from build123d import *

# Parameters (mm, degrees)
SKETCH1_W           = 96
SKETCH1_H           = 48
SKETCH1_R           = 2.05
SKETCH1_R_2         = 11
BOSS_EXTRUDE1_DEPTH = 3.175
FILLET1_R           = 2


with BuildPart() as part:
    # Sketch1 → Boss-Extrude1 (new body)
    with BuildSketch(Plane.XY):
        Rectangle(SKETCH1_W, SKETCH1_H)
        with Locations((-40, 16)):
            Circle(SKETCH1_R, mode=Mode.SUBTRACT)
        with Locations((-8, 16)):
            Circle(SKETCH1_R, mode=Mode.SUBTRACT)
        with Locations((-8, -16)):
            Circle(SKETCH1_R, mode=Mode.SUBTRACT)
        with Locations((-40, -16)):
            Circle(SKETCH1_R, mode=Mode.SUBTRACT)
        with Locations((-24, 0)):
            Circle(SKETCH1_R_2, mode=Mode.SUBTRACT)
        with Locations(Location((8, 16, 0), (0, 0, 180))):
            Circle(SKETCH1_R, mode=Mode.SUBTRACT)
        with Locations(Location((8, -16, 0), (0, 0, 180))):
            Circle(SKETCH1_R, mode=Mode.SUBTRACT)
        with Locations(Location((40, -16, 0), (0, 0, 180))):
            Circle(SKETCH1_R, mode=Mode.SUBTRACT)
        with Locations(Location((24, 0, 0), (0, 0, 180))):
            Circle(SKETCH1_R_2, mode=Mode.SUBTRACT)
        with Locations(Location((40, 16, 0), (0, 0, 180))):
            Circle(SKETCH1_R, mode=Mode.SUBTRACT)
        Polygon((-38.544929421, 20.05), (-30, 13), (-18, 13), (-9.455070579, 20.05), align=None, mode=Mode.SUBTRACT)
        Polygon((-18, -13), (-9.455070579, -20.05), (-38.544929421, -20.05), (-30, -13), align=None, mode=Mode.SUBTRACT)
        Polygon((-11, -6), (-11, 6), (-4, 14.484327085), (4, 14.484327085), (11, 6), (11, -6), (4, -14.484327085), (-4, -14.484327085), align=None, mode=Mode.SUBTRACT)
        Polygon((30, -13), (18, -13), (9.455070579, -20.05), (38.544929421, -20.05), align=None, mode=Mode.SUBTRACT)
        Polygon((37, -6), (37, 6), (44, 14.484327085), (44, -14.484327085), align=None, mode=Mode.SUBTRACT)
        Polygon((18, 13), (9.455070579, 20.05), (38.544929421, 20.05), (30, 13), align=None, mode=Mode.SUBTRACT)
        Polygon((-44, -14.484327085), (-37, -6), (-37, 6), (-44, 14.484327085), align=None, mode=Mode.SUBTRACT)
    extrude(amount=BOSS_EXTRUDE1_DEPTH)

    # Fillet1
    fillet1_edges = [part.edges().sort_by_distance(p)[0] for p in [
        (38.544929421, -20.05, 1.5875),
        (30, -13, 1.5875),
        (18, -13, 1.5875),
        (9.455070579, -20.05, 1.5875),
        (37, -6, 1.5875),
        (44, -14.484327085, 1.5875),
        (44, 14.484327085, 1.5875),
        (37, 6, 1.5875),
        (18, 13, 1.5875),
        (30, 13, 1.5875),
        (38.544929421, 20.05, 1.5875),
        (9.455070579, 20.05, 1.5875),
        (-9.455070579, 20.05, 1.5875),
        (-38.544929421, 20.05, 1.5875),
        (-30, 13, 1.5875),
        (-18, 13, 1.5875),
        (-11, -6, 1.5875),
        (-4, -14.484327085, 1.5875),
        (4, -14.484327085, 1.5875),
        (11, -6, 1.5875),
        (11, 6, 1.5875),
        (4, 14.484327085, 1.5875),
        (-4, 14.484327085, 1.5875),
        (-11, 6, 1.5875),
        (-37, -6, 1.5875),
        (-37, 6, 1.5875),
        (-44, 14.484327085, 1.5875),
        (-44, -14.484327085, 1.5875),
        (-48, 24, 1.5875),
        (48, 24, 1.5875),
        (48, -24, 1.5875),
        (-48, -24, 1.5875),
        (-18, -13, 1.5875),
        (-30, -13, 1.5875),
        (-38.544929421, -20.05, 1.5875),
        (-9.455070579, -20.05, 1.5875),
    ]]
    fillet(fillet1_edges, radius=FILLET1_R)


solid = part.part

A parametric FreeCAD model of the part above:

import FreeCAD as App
import Part
import Sketcher
from FreeCAD import Vector


def edges_at(feature, points):
    """Names of the edges that pass closest to the given points."""
    edges = feature.Shape.Edges
    near = lambda p: min(range(len(edges)), key=lambda i: edges[i].distToShape(Part.Vertex(*p))[0])
    return sorted({f"Edge{near(p) + 1}" for p in points})

doc = App.newDocument("Part")
body = doc.addObject("PartDesign::Body", "Body")

sketch1 = doc.addObject("Sketcher::SketchObject", "Sketch")
body.addObject(sketch1)
sketch1.AttachmentSupport = (doc.XY_Plane, [""])
sketch1.MapMode = "FlatFace"
sketch1.addGeometry(Part.LineSegment(Vector(-48, 24, 0), Vector(-48, -24, 0)), False)
sketch1.addGeometry(Part.LineSegment(Vector(-48, -24, 0), Vector(48, -24, 0)), False)
sketch1.addGeometry(Part.LineSegment(Vector(48, -24, 0), Vector(48, 24, 0)), False)
sketch1.addGeometry(Part.LineSegment(Vector(48, 24, 0), Vector(-48, 24, 0)), False)
sketch1.addGeometry(Part.Circle(Vector(-40, -16, 0), Vector(0, 0, 1), 2.05), False)
sketch1.addGeometry(Part.LineSegment(Vector(-30, -13, 0), Vector(-18, -13, 0)), False)
sketch1.addGeometry(Part.LineSegment(Vector(-18, -13, 0), Vector(-9.455071, -20.05, 0)), False)
sketch1.addGeometry(Part.LineSegment(Vector(-9.455071, -20.05, 0), Vector(-38.544929, -20.05, 0)), False)
sketch1.addGeometry(Part.LineSegment(Vector(-38.544929, -20.05, 0), Vector(-30, -13, 0)), False)
sketch1.addGeometry(Part.Circle(Vector(-8, -16, 0), Vector(0, 0, 1), 2.05), False)
sketch1.addGeometry(Part.LineSegment(Vector(-37, -6, 0), Vector(-44, -14.484327, 0)), False)
sketch1.addGeometry(Part.LineSegment(Vector(-44, -14.484327, 0), Vector(-44, 14.484327, 0)), False)
sketch1.addGeometry(Part.LineSegment(Vector(-44, 14.484327, 0), Vector(-37, 6, 0)), False)
sketch1.addGeometry(Part.LineSegment(Vector(-37, 6, 0), Vector(-37, -6, 0)), False)
sketch1.addGeometry(Part.Circle(Vector(-24, 0, 0), Vector(0, 0, 1), 11), False)
sketch1.addGeometry(Part.Circle(Vector(8, -16, 0), Vector(0, 0, 1), 2.05), False)
sketch1.addGeometry(Part.LineSegment(Vector(18, -13, 0), Vector(30, -13, 0)), False)
sketch1.addGeometry(Part.LineSegment(Vector(30, -13, 0), Vector(38.544929, -20.05, 0)), False)
sketch1.addGeometry(Part.LineSegment(Vector(38.544929, -20.05, 0), Vector(9.455071, -20.05, 0)), False)
sketch1.addGeometry(Part.LineSegment(Vector(9.455071, -20.05, 0), Vector(18, -13, 0)), False)
sketch1.addGeometry(Part.Circle(Vector(40, -16, 0), Vector(0, 0, 1), 2.05), False)
sketch1.addGeometry(Part.LineSegment(Vector(-4, -14.484327, 0), Vector(-11, -6, 0)), False)
sketch1.addGeometry(Part.LineSegment(Vector(-11, -6, 0), Vector(-11, 6, 0)), False)
sketch1.addGeometry(Part.LineSegment(Vector(-11, 6, 0), Vector(-4, 14.484327, 0)), False)
sketch1.addGeometry(Part.LineSegment(Vector(-4, 14.484327, 0), Vector(4, 14.484327, 0)), False)
sketch1.addGeometry(Part.LineSegment(Vector(4, 14.484327, 0), Vector(11, 6, 0)), False)
sketch1.addGeometry(Part.LineSegment(Vector(11, 6, 0), Vector(11, -6, 0)), False)
sketch1.addGeometry(Part.LineSegment(Vector(11, -6, 0), Vector(4, -14.484327, 0)), False)
sketch1.addGeometry(Part.LineSegment(Vector(4, -14.484327, 0), Vector(-4, -14.484327, 0)), False)
sketch1.addGeometry(Part.Circle(Vector(24, 0, 0), Vector(0, 0, 1), 11), False)
sketch1.addGeometry(Part.LineSegment(Vector(44, -14.484327, 0), Vector(37, -6, 0)), False)
sketch1.addGeometry(Part.LineSegment(Vector(37, -6, 0), Vector(37, 6, 0)), False)
sketch1.addGeometry(Part.LineSegment(Vector(37, 6, 0), Vector(44, 14.484327, 0)), False)
sketch1.addGeometry(Part.LineSegment(Vector(44, 14.484327, 0), Vector(44, -14.484327, 0)), False)
sketch1.addGeometry(Part.Circle(Vector(-40, 16, 0), Vector(0, 0, 1), 2.05), False)
sketch1.addGeometry(Part.LineSegment(Vector(-30, 13, 0), Vector(-38.544929, 20.05, 0)), False)
sketch1.addGeometry(Part.LineSegment(Vector(-38.544929, 20.05, 0), Vector(-9.455071, 20.05, 0)), False)
sketch1.addGeometry(Part.LineSegment(Vector(-9.455071, 20.05, 0), Vector(-18, 13, 0)), False)
sketch1.addGeometry(Part.LineSegment(Vector(-18, 13, 0), Vector(-30, 13, 0)), False)
sketch1.addGeometry(Part.Circle(Vector(-8, 16, 0), Vector(0, 0, 1), 2.05), False)
sketch1.addGeometry(Part.Circle(Vector(8, 16, 0), Vector(0, 0, 1), 2.05), False)
sketch1.addGeometry(Part.LineSegment(Vector(30, 13, 0), Vector(18, 13, 0)), False)
sketch1.addGeometry(Part.LineSegment(Vector(18, 13, 0), Vector(9.455071, 20.05, 0)), False)
sketch1.addGeometry(Part.LineSegment(Vector(9.455071, 20.05, 0), Vector(38.544929, 20.05, 0)), False)
sketch1.addGeometry(Part.LineSegment(Vector(38.544929, 20.05, 0), Vector(30, 13, 0)), False)
sketch1.addGeometry(Part.Circle(Vector(40, 16, 0), Vector(0, 0, 1), 2.05), False)
sketch1.addConstraint(Sketcher.Constraint("Coincident", 0, 2, 1, 1))
sketch1.addConstraint(Sketcher.Constraint("Coincident", 1, 2, 2, 1))
sketch1.addConstraint(Sketcher.Constraint("Coincident", 2, 2, 3, 1))
sketch1.addConstraint(Sketcher.Constraint("Coincident", 3, 2, 0, 1))
sketch1.addConstraint(Sketcher.Constraint("Coincident", 5, 2, 6, 1))
sketch1.addConstraint(Sketcher.Constraint("Coincident", 6, 2, 7, 1))
sketch1.addConstraint(Sketcher.Constraint("Coincident", 7, 2, 8, 1))
sketch1.addConstraint(Sketcher.Constraint("Coincident", 8, 2, 5, 1))
sketch1.addConstraint(Sketcher.Constraint("Coincident", 10, 2, 11, 1))
sketch1.addConstraint(Sketcher.Constraint("Coincident", 11, 2, 12, 1))
sketch1.addConstraint(Sketcher.Constraint("Coincident", 12, 2, 13, 1))
sketch1.addConstraint(Sketcher.Constraint("Coincident", 13, 2, 10, 1))
sketch1.addConstraint(Sketcher.Constraint("Coincident", 16, 2, 17, 1))
sketch1.addConstraint(Sketcher.Constraint("Coincident", 17, 2, 18, 1))
sketch1.addConstraint(Sketcher.Constraint("Coincident", 18, 2, 19, 1))
sketch1.addConstraint(Sketcher.Constraint("Coincident", 19, 2, 16, 1))
sketch1.addConstraint(Sketcher.Constraint("Coincident", 21, 2, 22, 1))
sketch1.addConstraint(Sketcher.Constraint("Coincident", 22, 2, 23, 1))
sketch1.addConstraint(Sketcher.Constraint("Coincident", 23, 2, 24, 1))
sketch1.addConstraint(Sketcher.Constraint("Coincident", 24, 2, 25, 1))
sketch1.addConstraint(Sketcher.Constraint("Coincident", 25, 2, 26, 1))
sketch1.addConstraint(Sketcher.Constraint("Coincident", 26, 2, 27, 1))
sketch1.addConstraint(Sketcher.Constraint("Coincident", 27, 2, 28, 1))
sketch1.addConstraint(Sketcher.Constraint("Coincident", 28, 2, 21, 1))
sketch1.addConstraint(Sketcher.Constraint("Coincident", 30, 2, 31, 1))
sketch1.addConstraint(Sketcher.Constraint("Coincident", 31, 2, 32, 1))
sketch1.addConstraint(Sketcher.Constraint("Coincident", 32, 2, 33, 1))
sketch1.addConstraint(Sketcher.Constraint("Coincident", 33, 2, 30, 1))
sketch1.addConstraint(Sketcher.Constraint("Coincident", 35, 2, 36, 1))
sketch1.addConstraint(Sketcher.Constraint("Coincident", 36, 2, 37, 1))
sketch1.addConstraint(Sketcher.Constraint("Coincident", 37, 2, 38, 1))
sketch1.addConstraint(Sketcher.Constraint("Coincident", 38, 2, 35, 1))
sketch1.addConstraint(Sketcher.Constraint("Coincident", 41, 2, 42, 1))
sketch1.addConstraint(Sketcher.Constraint("Coincident", 42, 2, 43, 1))
sketch1.addConstraint(Sketcher.Constraint("Coincident", 43, 2, 44, 1))
sketch1.addConstraint(Sketcher.Constraint("Coincident", 44, 2, 41, 1))
sketch1.addConstraint(Sketcher.Constraint("Vertical", 0))
sketch1.addConstraint(Sketcher.Constraint("Horizontal", 1))
sketch1.addConstraint(Sketcher.Constraint("Vertical", 2))
sketch1.addConstraint(Sketcher.Constraint("Horizontal", 3))
sketch1.addConstraint(Sketcher.Constraint("Horizontal", 5))
sketch1.addConstraint(Sketcher.Constraint("Horizontal", 7))
sketch1.addConstraint(Sketcher.Constraint("Vertical", 11))
sketch1.addConstraint(Sketcher.Constraint("Vertical", 13))
sketch1.addConstraint(Sketcher.Constraint("Horizontal", 16))
sketch1.addConstraint(Sketcher.Constraint("Horizontal", 18))
sketch1.addConstraint(Sketcher.Constraint("Vertical", 22))
sketch1.addConstraint(Sketcher.Constraint("Horizontal", 24))
sketch1.addConstraint(Sketcher.Constraint("Vertical", 26))
sketch1.addConstraint(Sketcher.Constraint("Horizontal", 28))
sketch1.addConstraint(Sketcher.Constraint("Vertical", 31))
sketch1.addConstraint(Sketcher.Constraint("Vertical", 33))
sketch1.addConstraint(Sketcher.Constraint("Horizontal", 36))
sketch1.addConstraint(Sketcher.Constraint("Horizontal", 38))
sketch1.addConstraint(Sketcher.Constraint("Horizontal", 41))
sketch1.addConstraint(Sketcher.Constraint("Horizontal", 43))
sketch1.addConstraint(Sketcher.Constraint("Equal", 4, 9))
sketch1.addConstraint(Sketcher.Constraint("Equal", 9, 15))
sketch1.addConstraint(Sketcher.Constraint("Equal", 15, 20))
sketch1.addConstraint(Sketcher.Constraint("Equal", 14, 29))
sketch1.addConstraint(Sketcher.Constraint("Equal", 20, 34))
sketch1.addConstraint(Sketcher.Constraint("Equal", 34, 39))
sketch1.addConstraint(Sketcher.Constraint("Equal", 39, 40))
sketch1.addConstraint(Sketcher.Constraint("Equal", 40, 45))
sketch1.addConstraint(Sketcher.Constraint("Symmetric", 14, 3, 29, 3, -1, 1))
sketch1.addConstraint(Sketcher.Constraint("Symmetric", 20, 3, 34, 3, -1, 1))
sketch1.addConstraint(Sketcher.Constraint("Symmetric", 15, 3, 39, 3, -1, 1))
sketch1.addConstraint(Sketcher.Constraint("Symmetric", 9, 3, 40, 3, -1, 1))
sketch1.addConstraint(Sketcher.Constraint("Symmetric", 4, 3, 45, 3, -1, 1))
sketch1.addConstraint(Sketcher.Constraint("Symmetric", 0, 2, 2, 2, -1, 1))
sketch1.addConstraint(Sketcher.Constraint("Symmetric", 21, 2, 25, 2, -1, 1))
sketch1.addConstraint(Sketcher.Constraint("Symmetric", 23, 2, 27, 2, -1, 1))
sketch1.addConstraint(Sketcher.Constraint("Symmetric", 12, 2, 30, 2, -1, 1))
sketch1.addConstraint(Sketcher.Constraint("Symmetric", 10, 2, 32, 2, -1, 1))
sketch1.addConstraint(Sketcher.Constraint("Symmetric", 17, 2, 35, 2, -1, 1))
sketch1.addConstraint(Sketcher.Constraint("Symmetric", 19, 2, 37, 2, -1, 1))
sketch1.addConstraint(Sketcher.Constraint("Symmetric", 5, 2, 41, 2, -1, 1))
sketch1.addConstraint(Sketcher.Constraint("Symmetric", 6, 2, 42, 2, -1, 1))
sketch1.addConstraint(Sketcher.Constraint("Symmetric", 9, 3, 15, 3, -2))
sketch1.addConstraint(Sketcher.Constraint("Symmetric", 4, 3, 20, 3, -2))
sketch1.addConstraint(Sketcher.Constraint("Symmetric", 8, 2, 16, 2, -2))
sketch1.addConstraint(Sketcher.Constraint("Symmetric", 7, 2, 17, 2, -2))
sketch1.addConstraint(Sketcher.Constraint("PointOnObject", 14, 3, -1))
sketch1.addConstraint(Sketcher.Constraint("Perpendicular", 6, 10))
sketch1.addConstraint(Sketcher.Constraint("Perpendicular", 8, 12))
sketch1.addConstraint(Sketcher.Constraint("Perpendicular", 10, 17))
sketch1.addConstraint(Sketcher.Constraint("Perpendicular", 12, 19))
sketch1.addConstraint(Sketcher.Constraint("Perpendicular", 19, 21))
sketch1.addConstraint(Sketcher.Constraint("Perpendicular", 17, 23))
sketch1.addConstraint(Sketcher.Constraint("Parallel", 21, 25))
sketch1.addConstraint(Sketcher.Constraint("Parallel", 23, 27))
sketch1.addConstraint(Sketcher.Constraint("Parallel", 25, 30))
sketch1.addConstraint(Sketcher.Constraint("Parallel", 27, 32))
sketch1.addConstraint(Sketcher.Constraint("Perpendicular", 32, 35))
sketch1.addConstraint(Sketcher.Constraint("Perpendicular", 30, 37))
sketch1.addConstraint(Sketcher.Constraint("Parallel", 37, 44))
sketch1.addConstraint(Sketcher.Constraint("Horizontal", 4, 3, 9, 3))
sketch1.addConstraint(Sketcher.Constraint("Horizontal", 13, 2, 21, 2))
sketch1.addConstraint(Sketcher.Constraint("Horizontal", 12, 2, 22, 2))
sketch1.addConstraint(Sketcher.Constraint("Horizontal", 11, 2, 23, 2))
sketch1.addConstraint(Sketcher.Constraint("Horizontal", 22, 2, 25, 2))
sketch1.addConstraint(Sketcher.Constraint("Vertical", 6, 2, 36, 2))
sketch1.addConstraint(Sketcher.Constraint("Vertical", 17, 2, 43, 2))
sketch1.addConstraint(Sketcher.Constraint("Equal", 41, 13))
sketch1.addConstraint(Sketcher.Constraint("Diameter", 14, 22.0))
sketch1.addConstraint(Sketcher.Constraint("Diameter", 4, 4.1))
sketch1.addConstraint(Sketcher.Constraint("DistanceX", 1, 1, 1, 2, 96.0))
sketch1.addConstraint(Sketcher.Constraint("DistanceX", 5, 1, 5, 2, 12.0))
sketch1.addConstraint(Sketcher.Constraint("DistanceX", 24, 1, 24, 2, 8.0))
sketch1.addConstraint(Sketcher.Constraint("DistanceY", 0, 2, 0, 1, 48.0))
sketch1.addConstraint(Sketcher.Constraint("DistanceX", 4, 3, -1, 1, 40.0))
sketch1.addConstraint(Sketcher.Constraint("DistanceY", 4, 3, -1, 1, 16.0))
sketch1.addConstraint(Sketcher.Constraint("DistanceX", 9, 3, -1, 1, 8.0))
sketch1.addConstraint(Sketcher.Constraint("DistanceX", 14, 3, -1, 1, 24.0))
sketch1.addConstraint(Sketcher.Constraint("DistanceX", 5, 2, -1, 1, 18.0))
sketch1.addConstraint(Sketcher.Constraint("DistanceY", 5, 2, -1, 1, 13.0))
sketch1.addConstraint(Sketcher.Constraint("DistanceX", 10, 2, -1, 1, 44.0))
sketch1.addConstraint(Sketcher.Constraint("DistanceX", 12, 2, -1, 1, 37.0))
sketch1.addConstraint(Sketcher.Constraint("DistanceY", 6, 2, -1, 1, 20.05))
sketch1.addConstraint(Sketcher.Constraint("DistanceX", 7, 2, 7, 1, 29.089859))
pad1 = doc.addObject("PartDesign::Pad", "Pad")
body.addObject(pad1)
pad1.Profile = sketch1
pad1.Length = 3.175
doc.recompute()

fillet = doc.addObject("PartDesign::Fillet", "Fillet")
body.addObject(fillet)
fillet.Base = (pad1, edges_at(pad1, [
    (38.545, -20.05, 1.587),
    (30, -13, 1.587),
    (18, -13, 1.587),
    (9.455, -20.05, 1.587),
    (37, -6, 1.587),
    (44, -14.484, 1.587),
    (44, 14.484, 1.587),
    (37, 6, 1.587),
    (18, 13, 1.587),
    (30, 13, 1.587),
    (38.545, 20.05, 1.587),
    (9.455, 20.05, 1.587),
    (-9.455, 20.05, 1.587),
    (-38.545, 20.05, 1.587),
    (-30, 13, 1.587),
    (-18, 13, 1.587),
    (-11, -6, 1.587),
    (-4, -14.484, 1.587),
    (4, -14.484, 1.587),
    (11, -6, 1.587),
    (11, 6, 1.587),
    (4, 14.484, 1.587),
    (-4, 14.484, 1.587),
    (-11, 6, 1.587),
    (-37, -6, 1.587),
    (-37, 6, 1.587),
    (-44, 14.484, 1.587),
    (-44, -14.484, 1.587),
    (-48, 24, 1.587),
    (48, 24, 1.587),
    (48, -24, 1.587),
    (-48, -24, 1.587),
    (-18, -13, 1.587),
    (-30, -13, 1.587),
    (-38.545, -20.05, 1.587),
    (-9.455, -20.05, 1.587),
]))
fillet.Radius = 2

doc.recompute()
